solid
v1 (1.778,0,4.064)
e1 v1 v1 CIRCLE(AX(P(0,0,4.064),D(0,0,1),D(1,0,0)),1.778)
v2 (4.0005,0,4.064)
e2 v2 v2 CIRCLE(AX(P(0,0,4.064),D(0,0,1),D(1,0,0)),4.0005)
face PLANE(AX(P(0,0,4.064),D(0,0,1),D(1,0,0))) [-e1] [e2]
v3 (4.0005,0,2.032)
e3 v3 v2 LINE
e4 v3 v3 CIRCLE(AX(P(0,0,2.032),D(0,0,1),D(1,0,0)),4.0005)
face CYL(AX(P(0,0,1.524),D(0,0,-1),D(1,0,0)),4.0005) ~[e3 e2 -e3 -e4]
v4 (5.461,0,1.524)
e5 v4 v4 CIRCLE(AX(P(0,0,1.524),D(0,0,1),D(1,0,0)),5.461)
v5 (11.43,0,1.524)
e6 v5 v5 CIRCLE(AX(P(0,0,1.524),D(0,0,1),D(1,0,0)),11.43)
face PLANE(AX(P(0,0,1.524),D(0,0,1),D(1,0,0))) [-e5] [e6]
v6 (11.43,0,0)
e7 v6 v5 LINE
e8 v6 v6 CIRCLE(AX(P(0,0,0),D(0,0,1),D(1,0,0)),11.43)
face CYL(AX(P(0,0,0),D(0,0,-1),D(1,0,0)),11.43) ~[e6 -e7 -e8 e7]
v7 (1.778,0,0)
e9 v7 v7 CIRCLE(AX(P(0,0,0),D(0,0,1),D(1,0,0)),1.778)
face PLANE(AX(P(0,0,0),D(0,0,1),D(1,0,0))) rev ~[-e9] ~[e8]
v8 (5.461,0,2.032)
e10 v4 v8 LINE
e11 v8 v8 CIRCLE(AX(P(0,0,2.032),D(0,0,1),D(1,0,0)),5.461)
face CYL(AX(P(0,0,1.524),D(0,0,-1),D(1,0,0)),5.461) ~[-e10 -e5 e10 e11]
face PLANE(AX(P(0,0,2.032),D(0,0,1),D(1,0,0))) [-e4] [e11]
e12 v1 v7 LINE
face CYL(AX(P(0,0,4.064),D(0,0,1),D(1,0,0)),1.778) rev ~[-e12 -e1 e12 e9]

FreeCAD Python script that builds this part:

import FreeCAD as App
import Part
import Sketcher
from FreeCAD import Vector
Q = App.Units.Quantity

doc = App.newDocument("Part")
params = doc.addObject("Spreadsheet::Sheet", "Params")
for row, (alias, value) in enumerate([
    ("sketch1_diameter", "0.9 in"),
    ("pad1_length", "0.06 in"),
    ("sketch2_diameter", "0.315 in"),
    ("pad2_length", "0.1 in"),
    ("sketch3_diameter", "0.14 in"),
    ("pocket1_length", "1 in"),
    ("sketch4_diameter", "0.43 in"),
    ("sketch4_diameter2", "0.315 in"),
    ("pad3_length", "0.02 in"),
], start=1):
    params.set(f"A{row}", alias)
    params.set(f"B{row}", "=" + value)
    params.setAlias(f"B{row}", alias)

body = doc.addObject("PartDesign::Body", "Body")

# Sketch on XY plane
sketch1 = body.newObject("Sketcher::SketchObject", "Sketch")
sketch1.AttachmentSupport = (doc.getObject("XY_Plane"), [""])
sketch1.MapMode = "FlatFace"
sketch1.addGeometry(Part.Circle(Vector(0, 0, 0), Vector(0, 0, 1), 11), False)
sketch1.addConstraint(Sketcher.Constraint("Coincident", 0, 3, -1, 1))
sketch1.addConstraint(Sketcher.Constraint("Diameter", 0, Q("0.9 in")))
sketch1.setExpression("Constraints[1]", "Params.sketch1_diameter")
pad1 = body.newObject("PartDesign::Pad", "Pad")
pad1.Profile = sketch1
pad1.setExpression("Length", "Params.pad1_length")

# Sketch on XY plane
sketch2 = body.newObject("Sketcher::SketchObject", "Sketch001")
sketch2.AttachmentSupport = (doc.getObject("XY_Plane"), [""])
sketch2.MapMode = "FlatFace"
sketch2.AttachmentOffset = App.Placement(Vector(0, 0, 0.06 * 25.4), App.Rotation())
sketch2.addGeometry(Part.Circle(Vector(0, 0, 0), Vector(0, 0, 1), 4), False)
sketch2.addConstraint(Sketcher.Constraint("Coincident", 0, 3, -1, 1))
sketch2.addConstraint(Sketcher.Constraint("Diameter", 0, Q("0.315 in")))
sketch2.setExpression("Constraints[1]", "Params.sketch2_diameter")
pad2 = body.newObject("PartDesign::Pad", "Pad001")
pad2.Profile = sketch2
pad2.setExpression("Length", "Params.pad2_length")

# Sketch on XY plane
sketch3 = body.newObject("Sketcher::SketchObject", "Sketch002")
sketch3.AttachmentSupport = (doc.getObject("XY_Plane"), [""])
sketch3.MapMode = "FlatFace"
sketch3.AttachmentOffset = App.Placement(Vector(0, 0, 0.16 * 25.4), App.Rotation())
sketch3.addGeometry(Part.Circle(Vector(0, 0, 0), Vector(0, 0, 1), 1.8), False)
sketch3.addConstraint(Sketcher.Constraint("Coincident", 0, 3, -1, 1))
sketch3.addConstraint(Sketcher.Constraint("Diameter", 0, Q("0.14 in")))
sketch3.setExpression("Constraints[1]", "Params.sketch3_diameter")
pocket1 = body.newObject("PartDesign::Pocket", "Pocket")
pocket1.Profile = sketch3
pocket1.setExpression("Length", "Params.pocket1_length")

# Sketch on XY plane
sketch4 = body.newObject("Sketcher::SketchObject", "Sketch003")
sketch4.AttachmentSupport = (doc.getObject("XY_Plane"), [""])
sketch4.MapMode = "FlatFace"
sketch4.AttachmentOffset = App.Placement(Vector(0, 0, 0.06 * 25.4), App.Rotation())
sketch4.addGeometry(Part.Circle(Vector(0, 0, 0), Vector(0, 0, 1), 5.5), False)
sketch4.addGeometry(Part.Circle(Vector(0, 0, 0), Vector(0, 0, 1), 4), False)
sketch4.addConstraint(Sketcher.Constraint("Coincident", 0, 3, -1, 1))
sketch4.addConstraint(Sketcher.Constraint("Coincident", 1, 3, -1, 1))
sketch4.addConstraint(Sketcher.Constraint("Diameter", 0, Q("0.43 in")))
sketch4.addConstraint(Sketcher.Constraint("Diameter", 1, Q("0.315 in")))
sketch4.setExpression("Constraints[2]", "Params.sketch4_diameter")
sketch4.setExpression("Constraints[3]", "Params.sketch4_diameter2")
pad3 = body.newObject("PartDesign::Pad", "Pad002")
pad3.Profile = sketch4
pad3.setExpression("Length", "Params.pad3_length")

doc.recompute()
